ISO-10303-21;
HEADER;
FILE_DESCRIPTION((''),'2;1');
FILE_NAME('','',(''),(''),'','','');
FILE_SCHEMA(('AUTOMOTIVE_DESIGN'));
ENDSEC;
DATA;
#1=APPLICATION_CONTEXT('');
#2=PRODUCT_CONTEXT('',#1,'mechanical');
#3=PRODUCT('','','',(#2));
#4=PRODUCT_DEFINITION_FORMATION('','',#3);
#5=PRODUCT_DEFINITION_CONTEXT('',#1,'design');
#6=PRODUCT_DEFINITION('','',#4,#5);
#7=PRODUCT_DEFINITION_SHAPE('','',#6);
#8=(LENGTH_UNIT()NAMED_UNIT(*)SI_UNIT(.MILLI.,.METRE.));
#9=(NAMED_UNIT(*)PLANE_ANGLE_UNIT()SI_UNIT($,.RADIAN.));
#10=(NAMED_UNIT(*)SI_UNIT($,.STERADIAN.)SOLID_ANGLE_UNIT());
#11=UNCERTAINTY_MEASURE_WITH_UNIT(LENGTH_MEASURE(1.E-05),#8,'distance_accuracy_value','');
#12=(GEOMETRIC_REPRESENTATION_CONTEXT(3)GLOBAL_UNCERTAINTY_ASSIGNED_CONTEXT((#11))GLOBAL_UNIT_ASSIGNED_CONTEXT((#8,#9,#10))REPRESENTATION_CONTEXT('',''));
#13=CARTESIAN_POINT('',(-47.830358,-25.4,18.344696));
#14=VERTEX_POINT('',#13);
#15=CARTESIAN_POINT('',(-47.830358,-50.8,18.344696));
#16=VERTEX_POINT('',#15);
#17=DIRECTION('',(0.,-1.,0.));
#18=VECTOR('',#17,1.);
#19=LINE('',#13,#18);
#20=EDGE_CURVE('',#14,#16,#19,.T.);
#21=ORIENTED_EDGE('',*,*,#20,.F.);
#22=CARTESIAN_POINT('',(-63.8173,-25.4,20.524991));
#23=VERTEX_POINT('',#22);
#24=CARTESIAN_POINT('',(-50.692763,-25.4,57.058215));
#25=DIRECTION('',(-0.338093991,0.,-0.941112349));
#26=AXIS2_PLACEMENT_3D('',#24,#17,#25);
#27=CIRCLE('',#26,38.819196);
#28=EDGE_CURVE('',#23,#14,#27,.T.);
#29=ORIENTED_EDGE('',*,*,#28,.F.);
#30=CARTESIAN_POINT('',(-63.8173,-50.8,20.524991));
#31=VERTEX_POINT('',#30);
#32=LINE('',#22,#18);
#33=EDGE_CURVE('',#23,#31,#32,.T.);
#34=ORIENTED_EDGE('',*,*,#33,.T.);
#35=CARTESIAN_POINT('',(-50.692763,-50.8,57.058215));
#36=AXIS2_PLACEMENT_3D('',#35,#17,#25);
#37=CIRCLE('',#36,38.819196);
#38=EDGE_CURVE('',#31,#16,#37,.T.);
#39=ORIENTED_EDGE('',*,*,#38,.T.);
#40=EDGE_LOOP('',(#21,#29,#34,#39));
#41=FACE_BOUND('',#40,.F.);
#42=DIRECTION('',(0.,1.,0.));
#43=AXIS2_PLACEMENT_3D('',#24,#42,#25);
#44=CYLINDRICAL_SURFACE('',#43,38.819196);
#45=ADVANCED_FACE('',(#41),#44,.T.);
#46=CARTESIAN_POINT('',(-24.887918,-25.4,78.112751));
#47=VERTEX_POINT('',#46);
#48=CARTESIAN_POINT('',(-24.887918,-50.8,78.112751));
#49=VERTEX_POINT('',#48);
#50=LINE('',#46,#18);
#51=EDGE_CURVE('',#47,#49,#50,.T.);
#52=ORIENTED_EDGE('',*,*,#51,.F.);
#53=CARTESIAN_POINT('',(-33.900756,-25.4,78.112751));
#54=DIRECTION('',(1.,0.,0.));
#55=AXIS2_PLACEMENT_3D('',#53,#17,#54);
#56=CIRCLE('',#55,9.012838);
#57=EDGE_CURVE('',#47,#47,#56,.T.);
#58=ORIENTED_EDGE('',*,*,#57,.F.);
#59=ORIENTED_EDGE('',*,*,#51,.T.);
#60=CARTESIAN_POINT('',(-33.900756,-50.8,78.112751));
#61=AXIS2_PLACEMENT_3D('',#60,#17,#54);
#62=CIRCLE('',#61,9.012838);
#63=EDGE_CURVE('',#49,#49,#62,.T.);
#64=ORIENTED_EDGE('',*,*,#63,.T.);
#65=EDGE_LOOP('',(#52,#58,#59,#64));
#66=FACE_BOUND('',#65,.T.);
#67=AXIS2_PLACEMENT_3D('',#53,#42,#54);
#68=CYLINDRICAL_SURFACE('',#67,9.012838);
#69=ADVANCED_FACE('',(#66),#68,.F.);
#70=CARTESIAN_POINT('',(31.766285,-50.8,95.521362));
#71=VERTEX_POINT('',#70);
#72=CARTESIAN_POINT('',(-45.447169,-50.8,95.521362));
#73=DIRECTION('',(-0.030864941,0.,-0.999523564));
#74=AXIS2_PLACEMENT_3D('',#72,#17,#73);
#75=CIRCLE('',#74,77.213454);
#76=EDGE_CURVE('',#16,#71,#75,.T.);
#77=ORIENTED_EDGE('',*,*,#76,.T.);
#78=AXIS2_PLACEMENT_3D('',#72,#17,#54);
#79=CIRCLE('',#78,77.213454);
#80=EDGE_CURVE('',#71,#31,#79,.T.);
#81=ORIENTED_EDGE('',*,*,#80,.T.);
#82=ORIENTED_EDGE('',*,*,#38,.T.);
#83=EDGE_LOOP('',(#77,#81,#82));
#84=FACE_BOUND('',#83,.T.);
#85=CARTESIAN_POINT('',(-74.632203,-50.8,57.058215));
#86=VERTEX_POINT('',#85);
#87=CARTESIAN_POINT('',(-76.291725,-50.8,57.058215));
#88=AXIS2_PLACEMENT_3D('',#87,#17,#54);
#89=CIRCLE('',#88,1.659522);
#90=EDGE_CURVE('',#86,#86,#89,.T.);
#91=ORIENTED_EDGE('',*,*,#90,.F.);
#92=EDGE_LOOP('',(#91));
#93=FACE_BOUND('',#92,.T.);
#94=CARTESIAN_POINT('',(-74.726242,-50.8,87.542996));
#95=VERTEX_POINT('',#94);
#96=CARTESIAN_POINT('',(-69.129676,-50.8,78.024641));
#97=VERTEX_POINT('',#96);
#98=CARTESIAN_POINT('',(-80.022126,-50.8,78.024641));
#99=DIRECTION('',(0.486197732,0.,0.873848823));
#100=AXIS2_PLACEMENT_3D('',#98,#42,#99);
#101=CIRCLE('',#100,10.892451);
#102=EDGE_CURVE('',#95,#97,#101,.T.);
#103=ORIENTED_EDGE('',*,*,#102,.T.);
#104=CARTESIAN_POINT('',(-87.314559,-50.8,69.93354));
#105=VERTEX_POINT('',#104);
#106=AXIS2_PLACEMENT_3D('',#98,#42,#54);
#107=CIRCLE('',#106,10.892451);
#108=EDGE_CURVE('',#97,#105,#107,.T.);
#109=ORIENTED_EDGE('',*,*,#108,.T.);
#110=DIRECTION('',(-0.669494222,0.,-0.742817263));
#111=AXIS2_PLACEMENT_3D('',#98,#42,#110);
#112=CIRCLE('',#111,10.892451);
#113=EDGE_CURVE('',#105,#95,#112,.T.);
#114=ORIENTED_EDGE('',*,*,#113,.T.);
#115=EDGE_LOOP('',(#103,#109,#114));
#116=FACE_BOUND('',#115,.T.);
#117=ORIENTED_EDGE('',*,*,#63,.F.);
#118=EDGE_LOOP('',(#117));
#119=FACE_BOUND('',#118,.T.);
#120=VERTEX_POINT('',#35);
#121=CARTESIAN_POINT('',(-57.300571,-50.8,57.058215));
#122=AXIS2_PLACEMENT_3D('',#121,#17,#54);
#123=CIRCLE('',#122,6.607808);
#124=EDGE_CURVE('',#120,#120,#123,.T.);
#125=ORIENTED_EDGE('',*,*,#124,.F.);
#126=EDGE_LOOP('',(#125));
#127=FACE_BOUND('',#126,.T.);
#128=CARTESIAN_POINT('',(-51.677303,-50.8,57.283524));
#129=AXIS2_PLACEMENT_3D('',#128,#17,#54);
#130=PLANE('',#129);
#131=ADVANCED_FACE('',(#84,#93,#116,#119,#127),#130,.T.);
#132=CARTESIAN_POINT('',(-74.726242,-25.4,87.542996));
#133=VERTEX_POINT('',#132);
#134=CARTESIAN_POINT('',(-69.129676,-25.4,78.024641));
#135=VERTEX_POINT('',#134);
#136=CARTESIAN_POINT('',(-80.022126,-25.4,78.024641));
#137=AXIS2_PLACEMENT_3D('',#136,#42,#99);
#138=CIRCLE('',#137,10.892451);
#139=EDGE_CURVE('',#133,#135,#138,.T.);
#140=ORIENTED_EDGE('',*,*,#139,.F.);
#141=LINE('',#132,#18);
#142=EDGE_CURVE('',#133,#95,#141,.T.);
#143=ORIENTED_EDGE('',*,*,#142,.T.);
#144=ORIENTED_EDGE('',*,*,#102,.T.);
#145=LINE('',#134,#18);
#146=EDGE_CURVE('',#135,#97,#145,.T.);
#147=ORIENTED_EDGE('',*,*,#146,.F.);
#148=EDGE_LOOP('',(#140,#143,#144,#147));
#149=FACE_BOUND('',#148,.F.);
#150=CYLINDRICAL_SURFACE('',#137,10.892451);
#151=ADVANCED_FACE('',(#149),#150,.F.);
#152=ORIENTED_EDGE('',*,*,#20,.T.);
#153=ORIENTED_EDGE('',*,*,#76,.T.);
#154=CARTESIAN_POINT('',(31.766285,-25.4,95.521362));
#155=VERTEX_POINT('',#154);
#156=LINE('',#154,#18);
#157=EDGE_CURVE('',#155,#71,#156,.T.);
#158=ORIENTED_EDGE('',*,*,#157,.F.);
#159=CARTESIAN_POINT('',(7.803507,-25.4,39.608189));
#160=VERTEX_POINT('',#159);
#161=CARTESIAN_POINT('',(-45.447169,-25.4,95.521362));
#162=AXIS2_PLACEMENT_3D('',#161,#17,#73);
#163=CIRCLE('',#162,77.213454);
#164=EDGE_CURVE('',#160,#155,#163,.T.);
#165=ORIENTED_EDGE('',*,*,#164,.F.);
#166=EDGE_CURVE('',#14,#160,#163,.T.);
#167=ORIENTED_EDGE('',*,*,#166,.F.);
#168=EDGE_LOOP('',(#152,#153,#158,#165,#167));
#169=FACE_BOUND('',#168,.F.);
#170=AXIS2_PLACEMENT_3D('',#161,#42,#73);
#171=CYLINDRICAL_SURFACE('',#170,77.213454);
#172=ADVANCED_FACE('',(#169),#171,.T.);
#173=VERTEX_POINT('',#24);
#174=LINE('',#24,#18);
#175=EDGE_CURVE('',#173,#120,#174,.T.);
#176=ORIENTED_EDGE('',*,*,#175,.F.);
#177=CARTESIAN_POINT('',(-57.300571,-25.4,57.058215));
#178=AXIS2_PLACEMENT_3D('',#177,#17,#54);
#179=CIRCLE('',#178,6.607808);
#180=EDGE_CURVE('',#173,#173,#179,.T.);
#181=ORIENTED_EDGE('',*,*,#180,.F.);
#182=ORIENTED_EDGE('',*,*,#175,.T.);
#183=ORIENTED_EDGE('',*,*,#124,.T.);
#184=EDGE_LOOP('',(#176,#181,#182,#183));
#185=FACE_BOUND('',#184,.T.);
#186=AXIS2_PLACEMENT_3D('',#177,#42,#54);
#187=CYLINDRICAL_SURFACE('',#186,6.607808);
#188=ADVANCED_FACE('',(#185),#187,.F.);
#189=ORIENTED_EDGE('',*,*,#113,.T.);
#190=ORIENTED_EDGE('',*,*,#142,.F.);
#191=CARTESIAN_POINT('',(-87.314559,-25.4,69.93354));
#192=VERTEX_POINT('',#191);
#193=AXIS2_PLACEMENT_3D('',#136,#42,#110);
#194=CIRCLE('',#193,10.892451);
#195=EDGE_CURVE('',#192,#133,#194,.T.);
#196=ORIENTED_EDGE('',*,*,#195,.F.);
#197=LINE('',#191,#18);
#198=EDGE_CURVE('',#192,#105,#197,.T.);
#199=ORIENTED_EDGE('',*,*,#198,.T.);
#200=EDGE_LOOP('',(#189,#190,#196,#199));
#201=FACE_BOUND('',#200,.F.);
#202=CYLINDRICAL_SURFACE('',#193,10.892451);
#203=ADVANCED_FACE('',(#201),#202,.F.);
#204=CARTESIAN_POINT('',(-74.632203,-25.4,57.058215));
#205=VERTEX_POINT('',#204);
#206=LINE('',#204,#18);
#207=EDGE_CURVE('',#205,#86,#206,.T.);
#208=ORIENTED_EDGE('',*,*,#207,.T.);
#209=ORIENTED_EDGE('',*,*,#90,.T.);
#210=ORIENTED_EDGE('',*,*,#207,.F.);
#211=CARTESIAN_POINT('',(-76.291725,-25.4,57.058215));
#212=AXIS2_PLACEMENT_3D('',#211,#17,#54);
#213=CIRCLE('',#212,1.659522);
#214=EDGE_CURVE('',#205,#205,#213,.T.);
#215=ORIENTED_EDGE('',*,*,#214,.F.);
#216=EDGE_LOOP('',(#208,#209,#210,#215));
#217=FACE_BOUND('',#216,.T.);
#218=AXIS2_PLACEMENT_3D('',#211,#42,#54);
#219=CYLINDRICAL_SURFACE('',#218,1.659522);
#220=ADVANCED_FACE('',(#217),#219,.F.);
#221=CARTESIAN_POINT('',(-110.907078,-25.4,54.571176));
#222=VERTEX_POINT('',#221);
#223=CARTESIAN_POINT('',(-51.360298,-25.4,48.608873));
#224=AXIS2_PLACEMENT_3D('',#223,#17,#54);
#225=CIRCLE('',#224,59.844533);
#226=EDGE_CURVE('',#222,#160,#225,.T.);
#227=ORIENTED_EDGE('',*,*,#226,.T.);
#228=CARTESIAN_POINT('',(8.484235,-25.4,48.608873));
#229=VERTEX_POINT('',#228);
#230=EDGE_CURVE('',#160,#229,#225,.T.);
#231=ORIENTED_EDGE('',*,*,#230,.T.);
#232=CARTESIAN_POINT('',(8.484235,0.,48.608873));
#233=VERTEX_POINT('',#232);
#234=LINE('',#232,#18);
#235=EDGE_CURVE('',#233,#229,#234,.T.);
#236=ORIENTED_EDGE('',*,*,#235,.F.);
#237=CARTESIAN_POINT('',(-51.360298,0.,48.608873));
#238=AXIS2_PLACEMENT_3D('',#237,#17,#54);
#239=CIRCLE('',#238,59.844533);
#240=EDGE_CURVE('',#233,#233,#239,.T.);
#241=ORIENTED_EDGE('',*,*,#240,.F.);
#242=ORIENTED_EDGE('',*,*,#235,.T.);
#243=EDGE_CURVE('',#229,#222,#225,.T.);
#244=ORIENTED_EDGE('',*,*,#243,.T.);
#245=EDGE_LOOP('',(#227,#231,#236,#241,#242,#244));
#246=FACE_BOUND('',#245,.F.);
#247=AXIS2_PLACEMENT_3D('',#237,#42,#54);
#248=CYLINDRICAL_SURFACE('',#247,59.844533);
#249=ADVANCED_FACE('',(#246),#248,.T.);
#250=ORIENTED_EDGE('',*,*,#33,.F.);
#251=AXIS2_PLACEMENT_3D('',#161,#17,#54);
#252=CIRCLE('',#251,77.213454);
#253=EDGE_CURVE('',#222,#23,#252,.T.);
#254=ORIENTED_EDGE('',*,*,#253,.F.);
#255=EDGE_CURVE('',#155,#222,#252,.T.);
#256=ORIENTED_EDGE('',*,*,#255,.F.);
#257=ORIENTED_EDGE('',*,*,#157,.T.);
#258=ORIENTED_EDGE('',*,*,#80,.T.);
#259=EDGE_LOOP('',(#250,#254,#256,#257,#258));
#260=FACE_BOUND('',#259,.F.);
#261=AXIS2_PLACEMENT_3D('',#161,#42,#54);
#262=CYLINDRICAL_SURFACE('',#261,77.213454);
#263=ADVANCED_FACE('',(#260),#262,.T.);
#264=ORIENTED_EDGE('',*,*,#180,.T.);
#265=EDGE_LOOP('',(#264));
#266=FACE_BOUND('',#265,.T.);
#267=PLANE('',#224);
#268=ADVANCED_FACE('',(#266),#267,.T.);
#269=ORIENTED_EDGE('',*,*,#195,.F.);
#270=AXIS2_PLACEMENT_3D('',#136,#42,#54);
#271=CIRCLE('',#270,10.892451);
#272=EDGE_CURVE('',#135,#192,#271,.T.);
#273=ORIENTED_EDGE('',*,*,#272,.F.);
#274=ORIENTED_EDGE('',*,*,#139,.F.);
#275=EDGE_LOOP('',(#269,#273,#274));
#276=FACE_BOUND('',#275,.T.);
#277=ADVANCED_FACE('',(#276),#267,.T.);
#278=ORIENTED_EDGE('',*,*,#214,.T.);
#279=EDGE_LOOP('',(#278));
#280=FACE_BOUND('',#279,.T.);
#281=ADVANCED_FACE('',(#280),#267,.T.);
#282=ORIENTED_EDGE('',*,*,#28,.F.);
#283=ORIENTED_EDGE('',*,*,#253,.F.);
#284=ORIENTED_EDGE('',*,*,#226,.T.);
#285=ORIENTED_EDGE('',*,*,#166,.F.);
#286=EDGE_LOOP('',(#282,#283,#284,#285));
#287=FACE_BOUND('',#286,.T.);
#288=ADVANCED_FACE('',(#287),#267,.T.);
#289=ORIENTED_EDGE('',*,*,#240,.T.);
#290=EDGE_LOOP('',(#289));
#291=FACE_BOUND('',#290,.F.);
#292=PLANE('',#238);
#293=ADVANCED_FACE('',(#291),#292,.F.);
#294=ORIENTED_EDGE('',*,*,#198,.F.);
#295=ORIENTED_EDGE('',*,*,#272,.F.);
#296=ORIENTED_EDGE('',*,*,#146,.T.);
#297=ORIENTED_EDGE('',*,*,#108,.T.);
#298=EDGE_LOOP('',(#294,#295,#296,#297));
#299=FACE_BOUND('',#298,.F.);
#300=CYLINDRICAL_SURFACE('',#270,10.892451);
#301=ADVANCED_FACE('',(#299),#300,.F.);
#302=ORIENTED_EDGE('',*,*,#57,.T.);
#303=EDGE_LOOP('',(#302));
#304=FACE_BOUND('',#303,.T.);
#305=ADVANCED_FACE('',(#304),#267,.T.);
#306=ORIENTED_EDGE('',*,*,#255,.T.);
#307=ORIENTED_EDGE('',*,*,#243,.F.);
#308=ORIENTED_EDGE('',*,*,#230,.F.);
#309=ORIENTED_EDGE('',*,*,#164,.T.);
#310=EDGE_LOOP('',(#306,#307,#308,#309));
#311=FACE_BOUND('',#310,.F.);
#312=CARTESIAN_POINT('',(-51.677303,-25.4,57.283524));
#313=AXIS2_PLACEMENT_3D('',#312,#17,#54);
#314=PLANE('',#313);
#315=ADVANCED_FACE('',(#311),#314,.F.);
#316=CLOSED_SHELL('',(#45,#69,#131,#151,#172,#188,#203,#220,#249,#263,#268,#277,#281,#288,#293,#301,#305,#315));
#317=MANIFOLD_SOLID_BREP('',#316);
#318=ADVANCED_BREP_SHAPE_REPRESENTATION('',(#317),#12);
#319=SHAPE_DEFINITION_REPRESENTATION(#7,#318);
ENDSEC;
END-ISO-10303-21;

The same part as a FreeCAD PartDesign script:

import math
import FreeCAD as App
import Part
import Sketcher
Q = App.Units.Quantity

doc = App.newDocument("Part")
body = doc.addObject("PartDesign::Body", "Body")

sketch1 = body.newObject("Sketcher::SketchObject", "Sketch")
sketch1.AttachmentSupport = (doc.getObject("XZ_Plane"), [""])
sketch1.MapMode = "FlatFace"
sketch1.addGeometry(Part.Circle(App.Vector(-51, 49, 0), App.Vector(0, 0, 1), 60), False)
sketch1.addConstraint([
    Sketcher.Constraint("Diameter", 0, 119.689066),
    Sketcher.Constraint("DistanceX", 0, 3, -1, 1, 51.360298),
    Sketcher.Constraint("DistanceY", -1, 1, 0, 3, 48.608873),
])
pad1 = body.newObject("PartDesign::Pad", "Pad")
pad1.Profile = sketch1
pad1.Length = Q("1 in")

sketch2 = body.newObject("Sketcher::SketchObject", "Sketch001")
sketch2.AttachmentSupport = (doc.getObject("XZ_Plane"), [""])
sketch2.MapMode = "FlatFace"
sketch2.AttachmentOffset = App.Placement(App.Vector(0, 0, 1 * 25.4), App.Rotation())
sketch2.addGeometry([
    Part.ArcOfCircle(Part.Circle(App.Vector(-45.4, 95.5, 0), App.Vector(0, 0, 1), 77.2), math.radians(-92), math.radians(0)),
    Part.ArcOfCircle(Part.Circle(App.Vector(-45.4, 95.5, 0), App.Vector(0, 0, 1), 77.2), math.radians(0), math.radians(256)),
    Part.ArcOfCircle(Part.Circle(App.Vector(-50.7, 57.1, 0), App.Vector(0, 0, 1), 38.8), math.radians(-110), math.radians(-86)),
    Part.ArcOfCircle(Part.Circle(App.Vector(-80, 78, 0), App.Vector(0, 0, 1), 10.9), math.radians(0), math.radians(61)),
    Part.ArcOfCircle(Part.Circle(App.Vector(-80, 78, 0), App.Vector(0, 0, 1), 10.9), math.radians(-132), math.radians(0)),
    Part.ArcOfCircle(Part.Circle(App.Vector(-80, 78, 0), App.Vector(0, 0, 1), 10.9), math.radians(61), math.radians(228)),
    Part.Circle(App.Vector(-76.3, 57.1, 0), App.Vector(0, 0, 1), 1.7),
    Part.Circle(App.Vector(-57.3, 57.1, 0), App.Vector(0, 0, 1), 6.6),
    Part.Circle(App.Vector(-33.9, 78.1, 0), App.Vector(0, 0, 1), 9),
], False)
sketch2.addConstraint([
    Sketcher.Constraint("Tangent", 0, 2, 1, 1),
    Sketcher.Constraint("Coincident", 1, 2, 2, 1),
    Sketcher.Constraint("Coincident", 2, 2, 0, 1),
    Sketcher.Constraint("Tangent", 3, 1, 4, 2),
    Sketcher.Constraint("Tangent", 4, 1, 5, 2),
    Sketcher.Constraint("Tangent", 5, 1, 3, 2),
    Sketcher.Constraint("Equal", 0, 1),
    Sketcher.Constraint("Horizontal", 2, 3, 6, 3),
    Sketcher.Constraint("Horizontal", 6, 3, 7, 3),
    Sketcher.Constraint("Horizontal", 1, 3, 0, 2),
    Sketcher.Constraint("Horizontal", 5, 3, 3, 1),
    Sketcher.Constraint("Diameter", 7, Q("0.5202999 in")),
    Sketcher.Constraint("Radius", 3, 10.892451),
    Sketcher.Constraint("Diameter", 6, 3.319044),
    Sketcher.Constraint("Diameter", 8, 18.025676),
    Sketcher.Constraint("Radius", 0, 77.213454),
    Sketcher.Constraint("Radius", 2, 38.819196),
    Sketcher.Constraint("DistanceX", 1, 2, -1, 1, 63.8173),
    Sketcher.Constraint("DistanceX", 3, 3, 6, 3, 3.730401),
    Sketcher.Constraint("DistanceX", 2, 2, 8, 3, 13.929601),
    Sketcher.Constraint("DistanceY", 4, 1, 3, 3, 8.091101),
    Sketcher.Constraint("DistanceX", 0, 3, -1, 1, 45.447169),
    Sketcher.Constraint("DistanceY", -1, 1, 3, 3, 78.024641),
    Sketcher.Constraint("DistanceX", 7, 3, -1, 1, 57.300571),
    Sketcher.Constraint("DistanceY", -1, 1, 8, 3, 78.112751),
    Sketcher.Constraint("DistanceY", -1, 1, 1, 2, 20.524991),
    Sketcher.Constraint("DistanceX", 4, 1, -1, 1, 87.314559),
    Sketcher.Constraint("DistanceX", 5, 1, -1, 1, 74.726242),
    Sketcher.Constraint("DistanceX", 6, 3, 2, 3, 25.598962),
])
pad2 = body.newObject("PartDesign::Pad", "Pad001")
pad2.Profile = sketch2
pad2.Length = Q("1 in")

doc.recompute()
